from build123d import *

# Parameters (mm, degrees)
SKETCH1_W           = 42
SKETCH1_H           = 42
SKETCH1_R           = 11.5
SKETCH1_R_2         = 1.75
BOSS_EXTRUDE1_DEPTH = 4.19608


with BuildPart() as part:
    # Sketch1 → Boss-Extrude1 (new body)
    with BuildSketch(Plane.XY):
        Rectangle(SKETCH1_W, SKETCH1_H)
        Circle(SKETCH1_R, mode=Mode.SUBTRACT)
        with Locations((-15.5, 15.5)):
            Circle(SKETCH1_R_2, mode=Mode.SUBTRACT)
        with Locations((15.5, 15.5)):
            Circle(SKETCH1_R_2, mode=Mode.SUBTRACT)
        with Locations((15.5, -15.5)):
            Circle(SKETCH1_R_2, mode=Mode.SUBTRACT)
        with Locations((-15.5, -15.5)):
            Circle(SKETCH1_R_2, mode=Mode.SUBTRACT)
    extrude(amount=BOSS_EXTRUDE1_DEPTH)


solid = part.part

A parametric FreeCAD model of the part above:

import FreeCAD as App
import Part
import Sketcher
Q = App.Units.Quantity


def add_polygon(sketch, points):
    """Adds a closed chain of lines whose ends are joined by coincident constraints."""
    first, n = sketch.GeometryCount, len(points)
    for a, b in zip(points, points[1:] + points[:1]):
        sketch.addGeometry(Part.LineSegment(App.Vector(*a, 0), App.Vector(*b, 0)), False)
    for i in range(n):
        sketch.addConstraint(Sketcher.Constraint("Coincident", first + i, 2, first + (i + 1) % n, 1))

doc = App.newDocument("Part")
body = doc.addObject("PartDesign::Body", "Body")

# Sketch on XY plane
sketch1 = doc.addObject("Sketcher::SketchObject", "Sketch")
body.addObject(sketch1)
sketch1.AttachmentSupport = (doc.XY_Plane, [""])
sketch1.MapMode = "FlatFace"
add_polygon(sketch1, [(-21, 21), (-21, -21), (21, -21), (21, 21)])  # lines 0-3
sketch1.addGeometry(Part.Circle(App.Vector(-15.5, -15.5, 0), App.Vector(0, 0, 1), 1.8), False)  # 4
sketch1.addGeometry(Part.Circle(App.Vector(15.5, -15.5, 0), App.Vector(0, 0, 1), 1.8), False)  # 5
sketch1.addGeometry(Part.Circle(App.Vector(-15.5, 15.5, 0), App.Vector(0, 0, 1), 1.8), False)  # 6
sketch1.addGeometry(Part.Circle(App.Vector(0, 0, 0), App.Vector(0, 0, 1), 11.5), False)  # 7
sketch1.addGeometry(Part.Circle(App.Vector(15.5, 15.5, 0), App.Vector(0, 0, 1), 1.8), False)  # 8
sketch1.addConstraint([
    Sketcher.Constraint("Vertical", 0),
    Sketcher.Constraint("Horizontal", 1),
    Sketcher.Constraint("Vertical", 2),
    Sketcher.Constraint("Horizontal", 3),
    Sketcher.Constraint("Coincident", 7, 3, -1, 1),
    Sketcher.Constraint("Equal", 4, 5),
    Sketcher.Constraint("Equal", 5, 6),
    Sketcher.Constraint("Equal", 6, 8),
    Sketcher.Constraint("Symmetric", 5, 3, 6, 3, -1, 1),
    Sketcher.Constraint("Symmetric", 4, 3, 8, 3, -1, 1),
    Sketcher.Constraint("Symmetric", 0, 2, 2, 2, -1, 1),
    Sketcher.Constraint("Symmetric", 4, 3, 5, 3, -2),
    Sketcher.Constraint("Equal", 3, 0),
    Sketcher.Constraint("Diameter", 7, Q("23 mm")),
    Sketcher.Constraint("Diameter", 4, Q("3.5 mm")),
    Sketcher.Constraint("DistanceX", 1, 1, 1, 2, Q("42 mm")),
    Sketcher.Constraint("DistanceX", 4, 3, 5, 3, Q("31 mm")),
    Sketcher.Constraint("DistanceY", 4, 3, 6, 3, Q("31 mm")),
])
pad1 = doc.addObject("PartDesign::Pad", "Pad")
body.addObject(pad1)
pad1.Profile = sketch1
pad1.Length = 4.19608

doc.recompute()
